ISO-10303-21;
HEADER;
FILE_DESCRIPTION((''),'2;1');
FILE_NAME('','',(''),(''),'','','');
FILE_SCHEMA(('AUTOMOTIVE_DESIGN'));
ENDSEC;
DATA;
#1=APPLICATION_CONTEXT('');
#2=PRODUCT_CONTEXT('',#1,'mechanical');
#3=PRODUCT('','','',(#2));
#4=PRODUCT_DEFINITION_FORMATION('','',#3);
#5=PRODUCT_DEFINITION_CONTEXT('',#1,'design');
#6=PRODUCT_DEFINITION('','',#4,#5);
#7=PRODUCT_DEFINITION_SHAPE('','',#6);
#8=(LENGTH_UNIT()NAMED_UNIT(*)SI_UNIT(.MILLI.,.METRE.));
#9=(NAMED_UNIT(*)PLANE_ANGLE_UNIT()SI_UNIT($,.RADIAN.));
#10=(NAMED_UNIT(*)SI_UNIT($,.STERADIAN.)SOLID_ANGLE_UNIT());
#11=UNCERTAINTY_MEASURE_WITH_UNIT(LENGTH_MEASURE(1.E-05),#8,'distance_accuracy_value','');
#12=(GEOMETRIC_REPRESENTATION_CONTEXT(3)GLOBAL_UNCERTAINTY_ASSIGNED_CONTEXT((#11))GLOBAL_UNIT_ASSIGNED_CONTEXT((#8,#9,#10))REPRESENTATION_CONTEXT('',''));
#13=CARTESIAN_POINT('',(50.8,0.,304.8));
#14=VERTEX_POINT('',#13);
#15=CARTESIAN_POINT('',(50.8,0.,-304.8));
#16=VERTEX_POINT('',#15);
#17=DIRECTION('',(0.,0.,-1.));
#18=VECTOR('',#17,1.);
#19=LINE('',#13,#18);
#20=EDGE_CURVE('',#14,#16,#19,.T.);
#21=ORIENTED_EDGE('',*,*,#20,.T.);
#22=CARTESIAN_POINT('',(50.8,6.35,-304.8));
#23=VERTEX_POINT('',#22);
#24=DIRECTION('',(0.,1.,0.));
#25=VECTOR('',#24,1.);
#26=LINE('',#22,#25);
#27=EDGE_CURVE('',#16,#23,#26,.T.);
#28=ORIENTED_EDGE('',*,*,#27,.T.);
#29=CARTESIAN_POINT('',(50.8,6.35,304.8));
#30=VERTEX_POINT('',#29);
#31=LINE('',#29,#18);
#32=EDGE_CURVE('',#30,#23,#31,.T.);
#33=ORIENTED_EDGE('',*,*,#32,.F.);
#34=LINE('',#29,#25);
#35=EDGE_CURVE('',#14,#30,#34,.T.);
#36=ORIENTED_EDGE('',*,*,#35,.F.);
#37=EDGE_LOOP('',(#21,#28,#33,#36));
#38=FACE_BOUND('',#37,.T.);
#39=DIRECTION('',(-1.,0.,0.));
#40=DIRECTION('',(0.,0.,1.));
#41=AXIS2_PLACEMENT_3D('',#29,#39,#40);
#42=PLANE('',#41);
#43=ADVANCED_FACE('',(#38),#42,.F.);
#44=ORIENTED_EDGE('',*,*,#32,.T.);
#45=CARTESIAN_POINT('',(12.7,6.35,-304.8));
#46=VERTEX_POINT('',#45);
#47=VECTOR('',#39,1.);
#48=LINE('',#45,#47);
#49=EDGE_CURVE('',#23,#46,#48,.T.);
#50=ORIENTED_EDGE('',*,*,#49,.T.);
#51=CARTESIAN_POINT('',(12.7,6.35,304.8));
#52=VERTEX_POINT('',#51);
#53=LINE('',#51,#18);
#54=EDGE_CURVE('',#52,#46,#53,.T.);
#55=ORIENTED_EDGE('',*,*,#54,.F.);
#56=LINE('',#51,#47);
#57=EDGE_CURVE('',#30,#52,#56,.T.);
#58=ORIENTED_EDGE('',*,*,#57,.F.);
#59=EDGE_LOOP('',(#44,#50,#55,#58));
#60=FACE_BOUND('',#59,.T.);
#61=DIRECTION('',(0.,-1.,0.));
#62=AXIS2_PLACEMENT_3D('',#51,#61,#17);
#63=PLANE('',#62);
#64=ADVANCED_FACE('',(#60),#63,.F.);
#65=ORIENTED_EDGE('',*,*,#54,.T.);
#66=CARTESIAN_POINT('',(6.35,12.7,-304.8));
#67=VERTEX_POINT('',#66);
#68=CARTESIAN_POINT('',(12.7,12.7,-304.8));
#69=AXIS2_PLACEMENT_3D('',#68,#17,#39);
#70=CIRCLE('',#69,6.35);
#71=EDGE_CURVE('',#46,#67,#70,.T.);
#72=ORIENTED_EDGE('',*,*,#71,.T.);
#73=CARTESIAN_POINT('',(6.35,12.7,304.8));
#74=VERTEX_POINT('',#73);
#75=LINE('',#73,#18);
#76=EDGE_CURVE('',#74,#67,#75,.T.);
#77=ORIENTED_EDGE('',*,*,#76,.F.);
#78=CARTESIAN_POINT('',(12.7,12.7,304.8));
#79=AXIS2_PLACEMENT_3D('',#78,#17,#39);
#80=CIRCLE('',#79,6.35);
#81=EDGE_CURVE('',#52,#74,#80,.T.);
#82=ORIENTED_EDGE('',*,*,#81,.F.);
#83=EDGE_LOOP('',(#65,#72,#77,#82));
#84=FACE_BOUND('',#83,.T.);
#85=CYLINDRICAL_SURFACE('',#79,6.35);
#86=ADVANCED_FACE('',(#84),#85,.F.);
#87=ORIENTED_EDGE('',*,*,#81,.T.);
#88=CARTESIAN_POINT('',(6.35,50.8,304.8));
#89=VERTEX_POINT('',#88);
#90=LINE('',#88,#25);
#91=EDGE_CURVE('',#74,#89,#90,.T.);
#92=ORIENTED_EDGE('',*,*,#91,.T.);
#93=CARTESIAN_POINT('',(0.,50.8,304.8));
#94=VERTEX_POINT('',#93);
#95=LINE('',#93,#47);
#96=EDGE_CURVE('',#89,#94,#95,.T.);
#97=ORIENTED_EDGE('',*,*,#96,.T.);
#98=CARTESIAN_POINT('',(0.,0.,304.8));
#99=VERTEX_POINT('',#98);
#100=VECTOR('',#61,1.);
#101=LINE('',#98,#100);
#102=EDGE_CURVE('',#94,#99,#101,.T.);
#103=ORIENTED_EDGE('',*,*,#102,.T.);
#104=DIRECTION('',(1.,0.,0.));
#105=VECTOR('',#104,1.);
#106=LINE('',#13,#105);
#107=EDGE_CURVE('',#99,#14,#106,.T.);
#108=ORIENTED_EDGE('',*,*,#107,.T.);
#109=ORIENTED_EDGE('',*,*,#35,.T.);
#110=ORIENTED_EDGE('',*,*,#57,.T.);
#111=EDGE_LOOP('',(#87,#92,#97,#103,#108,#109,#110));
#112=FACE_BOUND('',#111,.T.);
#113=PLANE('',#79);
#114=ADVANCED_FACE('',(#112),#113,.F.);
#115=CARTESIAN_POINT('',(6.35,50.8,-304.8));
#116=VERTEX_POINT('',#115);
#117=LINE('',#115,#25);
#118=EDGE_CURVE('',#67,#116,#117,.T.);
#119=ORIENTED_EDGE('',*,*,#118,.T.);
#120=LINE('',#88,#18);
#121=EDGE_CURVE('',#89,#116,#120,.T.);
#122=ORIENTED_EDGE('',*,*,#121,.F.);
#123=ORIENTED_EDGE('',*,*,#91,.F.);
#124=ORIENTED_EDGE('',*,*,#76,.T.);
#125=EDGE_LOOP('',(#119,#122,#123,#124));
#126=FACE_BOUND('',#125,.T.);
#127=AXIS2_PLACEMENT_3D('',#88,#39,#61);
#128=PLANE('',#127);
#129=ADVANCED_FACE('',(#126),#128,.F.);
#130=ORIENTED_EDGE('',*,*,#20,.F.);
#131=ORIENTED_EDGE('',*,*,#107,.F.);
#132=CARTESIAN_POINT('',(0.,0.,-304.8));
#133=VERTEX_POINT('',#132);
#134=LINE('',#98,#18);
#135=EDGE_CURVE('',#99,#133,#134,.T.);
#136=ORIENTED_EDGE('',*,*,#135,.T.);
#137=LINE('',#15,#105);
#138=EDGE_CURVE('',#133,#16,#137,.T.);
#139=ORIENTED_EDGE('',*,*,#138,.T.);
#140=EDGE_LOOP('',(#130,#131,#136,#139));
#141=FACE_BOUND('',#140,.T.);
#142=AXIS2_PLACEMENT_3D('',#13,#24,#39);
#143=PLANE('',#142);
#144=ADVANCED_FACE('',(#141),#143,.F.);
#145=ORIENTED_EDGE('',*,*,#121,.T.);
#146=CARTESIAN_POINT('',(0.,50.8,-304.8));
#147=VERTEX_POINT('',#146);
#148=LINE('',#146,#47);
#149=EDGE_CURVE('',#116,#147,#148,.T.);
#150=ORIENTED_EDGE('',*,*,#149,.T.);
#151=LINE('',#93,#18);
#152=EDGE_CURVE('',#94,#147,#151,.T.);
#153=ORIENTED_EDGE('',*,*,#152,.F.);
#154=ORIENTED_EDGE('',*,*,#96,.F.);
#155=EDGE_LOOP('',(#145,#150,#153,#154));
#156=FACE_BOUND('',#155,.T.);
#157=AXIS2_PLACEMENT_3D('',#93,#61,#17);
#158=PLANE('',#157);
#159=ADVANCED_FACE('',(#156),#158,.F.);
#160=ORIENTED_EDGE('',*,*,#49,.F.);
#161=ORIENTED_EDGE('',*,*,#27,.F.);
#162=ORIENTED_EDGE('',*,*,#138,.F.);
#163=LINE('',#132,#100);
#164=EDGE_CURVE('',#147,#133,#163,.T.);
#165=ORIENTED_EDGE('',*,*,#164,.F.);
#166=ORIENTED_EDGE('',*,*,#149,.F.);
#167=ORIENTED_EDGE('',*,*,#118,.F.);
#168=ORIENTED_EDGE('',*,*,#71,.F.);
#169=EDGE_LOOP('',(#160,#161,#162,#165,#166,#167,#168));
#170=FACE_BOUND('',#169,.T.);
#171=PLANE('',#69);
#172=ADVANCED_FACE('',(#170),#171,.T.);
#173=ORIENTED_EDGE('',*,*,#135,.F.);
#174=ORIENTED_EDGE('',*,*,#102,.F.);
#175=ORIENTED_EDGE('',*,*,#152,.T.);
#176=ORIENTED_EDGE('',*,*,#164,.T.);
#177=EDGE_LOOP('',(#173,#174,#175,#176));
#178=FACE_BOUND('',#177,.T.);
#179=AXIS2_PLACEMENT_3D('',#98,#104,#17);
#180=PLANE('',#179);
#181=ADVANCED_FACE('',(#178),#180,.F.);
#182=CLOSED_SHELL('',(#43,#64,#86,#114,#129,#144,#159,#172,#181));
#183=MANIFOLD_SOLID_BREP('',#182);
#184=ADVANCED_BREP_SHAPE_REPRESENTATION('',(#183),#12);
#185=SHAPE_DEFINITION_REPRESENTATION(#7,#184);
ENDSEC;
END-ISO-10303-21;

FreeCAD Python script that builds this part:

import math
import FreeCAD as App
import Part
import Sketcher
Q = App.Units.Quantity

doc = App.newDocument("Part")
body = doc.addObject("PartDesign::Body", "Body")

# Sketch on XY plane
sketch1 = body.newObject("Sketcher::SketchObject", "Sketch")
sketch1.AttachmentSupport = (doc.getObject("XY_Plane"), [""])
sketch1.MapMode = "FlatFace"
sketch1.addGeometry([
    Part.LineSegment(App.Vector(0, 50.8, 0), App.Vector(0, 0, 0)),  # 0
    Part.LineSegment(App.Vector(0, 0, 0), App.Vector(50.8, 0, 0)),  # 1
    Part.LineSegment(App.Vector(50.8, 0, 0), App.Vector(50.8, 6.35, 0)),  # 2
    Part.LineSegment(App.Vector(50.8, 6.35, 0), App.Vector(12.7, 6.35, 0)),  # 3
    Part.ArcOfCircle(Part.Circle(App.Vector(12.7, 12.7, 0), App.Vector(0, 0, 1), 6.35), math.radians(180), math.radians(270)),  # 4
    Part.LineSegment(App.Vector(6.35, 12.7, 0), App.Vector(6.35, 50.8, 0)),  # 5
    Part.LineSegment(App.Vector(6.35, 50.8, 0), App.Vector(0, 50.8, 0)),  # 6
], False)
sketch1.addConstraint([
    Sketcher.Constraint("Coincident", 0, 2, 1, 1),
    Sketcher.Constraint("Coincident", 1, 2, 2, 1),
    Sketcher.Constraint("Coincident", 2, 2, 3, 1),
    Sketcher.Constraint("Tangent", 3, 2, 4, 2),
    Sketcher.Constraint("Tangent", 4, 1, 5, 1),
    Sketcher.Constraint("Coincident", 5, 2, 6, 1),
    Sketcher.Constraint("Coincident", 6, 2, 0, 1),
    Sketcher.Constraint("Vertical", 0),
    Sketcher.Constraint("Horizontal", 1),
    Sketcher.Constraint("Vertical", 2),
    Sketcher.Constraint("Horizontal", 3),
    Sketcher.Constraint("Vertical", 5),
    Sketcher.Constraint("Horizontal", 6),
    Sketcher.Constraint("Coincident", 0, 2, -1, 1),
    Sketcher.Constraint("Equal", 1, 0),
    Sketcher.Constraint("Equal", 6, 2),
    Sketcher.Constraint("DistanceX", 1, 1, 1, 2, Q("2 in")),
    Sketcher.Constraint("Radius", 4, Q("0.25 in")),
    Sketcher.Constraint("DistanceX", 3, 2, 3, 1, Q("1.5 in")),
])
pad1 = body.newObject("PartDesign::Pad", "Pad")
pad1.Profile = sketch1
pad1.Length = Q("24 in")
pad1.Midplane = True

doc.recompute()
